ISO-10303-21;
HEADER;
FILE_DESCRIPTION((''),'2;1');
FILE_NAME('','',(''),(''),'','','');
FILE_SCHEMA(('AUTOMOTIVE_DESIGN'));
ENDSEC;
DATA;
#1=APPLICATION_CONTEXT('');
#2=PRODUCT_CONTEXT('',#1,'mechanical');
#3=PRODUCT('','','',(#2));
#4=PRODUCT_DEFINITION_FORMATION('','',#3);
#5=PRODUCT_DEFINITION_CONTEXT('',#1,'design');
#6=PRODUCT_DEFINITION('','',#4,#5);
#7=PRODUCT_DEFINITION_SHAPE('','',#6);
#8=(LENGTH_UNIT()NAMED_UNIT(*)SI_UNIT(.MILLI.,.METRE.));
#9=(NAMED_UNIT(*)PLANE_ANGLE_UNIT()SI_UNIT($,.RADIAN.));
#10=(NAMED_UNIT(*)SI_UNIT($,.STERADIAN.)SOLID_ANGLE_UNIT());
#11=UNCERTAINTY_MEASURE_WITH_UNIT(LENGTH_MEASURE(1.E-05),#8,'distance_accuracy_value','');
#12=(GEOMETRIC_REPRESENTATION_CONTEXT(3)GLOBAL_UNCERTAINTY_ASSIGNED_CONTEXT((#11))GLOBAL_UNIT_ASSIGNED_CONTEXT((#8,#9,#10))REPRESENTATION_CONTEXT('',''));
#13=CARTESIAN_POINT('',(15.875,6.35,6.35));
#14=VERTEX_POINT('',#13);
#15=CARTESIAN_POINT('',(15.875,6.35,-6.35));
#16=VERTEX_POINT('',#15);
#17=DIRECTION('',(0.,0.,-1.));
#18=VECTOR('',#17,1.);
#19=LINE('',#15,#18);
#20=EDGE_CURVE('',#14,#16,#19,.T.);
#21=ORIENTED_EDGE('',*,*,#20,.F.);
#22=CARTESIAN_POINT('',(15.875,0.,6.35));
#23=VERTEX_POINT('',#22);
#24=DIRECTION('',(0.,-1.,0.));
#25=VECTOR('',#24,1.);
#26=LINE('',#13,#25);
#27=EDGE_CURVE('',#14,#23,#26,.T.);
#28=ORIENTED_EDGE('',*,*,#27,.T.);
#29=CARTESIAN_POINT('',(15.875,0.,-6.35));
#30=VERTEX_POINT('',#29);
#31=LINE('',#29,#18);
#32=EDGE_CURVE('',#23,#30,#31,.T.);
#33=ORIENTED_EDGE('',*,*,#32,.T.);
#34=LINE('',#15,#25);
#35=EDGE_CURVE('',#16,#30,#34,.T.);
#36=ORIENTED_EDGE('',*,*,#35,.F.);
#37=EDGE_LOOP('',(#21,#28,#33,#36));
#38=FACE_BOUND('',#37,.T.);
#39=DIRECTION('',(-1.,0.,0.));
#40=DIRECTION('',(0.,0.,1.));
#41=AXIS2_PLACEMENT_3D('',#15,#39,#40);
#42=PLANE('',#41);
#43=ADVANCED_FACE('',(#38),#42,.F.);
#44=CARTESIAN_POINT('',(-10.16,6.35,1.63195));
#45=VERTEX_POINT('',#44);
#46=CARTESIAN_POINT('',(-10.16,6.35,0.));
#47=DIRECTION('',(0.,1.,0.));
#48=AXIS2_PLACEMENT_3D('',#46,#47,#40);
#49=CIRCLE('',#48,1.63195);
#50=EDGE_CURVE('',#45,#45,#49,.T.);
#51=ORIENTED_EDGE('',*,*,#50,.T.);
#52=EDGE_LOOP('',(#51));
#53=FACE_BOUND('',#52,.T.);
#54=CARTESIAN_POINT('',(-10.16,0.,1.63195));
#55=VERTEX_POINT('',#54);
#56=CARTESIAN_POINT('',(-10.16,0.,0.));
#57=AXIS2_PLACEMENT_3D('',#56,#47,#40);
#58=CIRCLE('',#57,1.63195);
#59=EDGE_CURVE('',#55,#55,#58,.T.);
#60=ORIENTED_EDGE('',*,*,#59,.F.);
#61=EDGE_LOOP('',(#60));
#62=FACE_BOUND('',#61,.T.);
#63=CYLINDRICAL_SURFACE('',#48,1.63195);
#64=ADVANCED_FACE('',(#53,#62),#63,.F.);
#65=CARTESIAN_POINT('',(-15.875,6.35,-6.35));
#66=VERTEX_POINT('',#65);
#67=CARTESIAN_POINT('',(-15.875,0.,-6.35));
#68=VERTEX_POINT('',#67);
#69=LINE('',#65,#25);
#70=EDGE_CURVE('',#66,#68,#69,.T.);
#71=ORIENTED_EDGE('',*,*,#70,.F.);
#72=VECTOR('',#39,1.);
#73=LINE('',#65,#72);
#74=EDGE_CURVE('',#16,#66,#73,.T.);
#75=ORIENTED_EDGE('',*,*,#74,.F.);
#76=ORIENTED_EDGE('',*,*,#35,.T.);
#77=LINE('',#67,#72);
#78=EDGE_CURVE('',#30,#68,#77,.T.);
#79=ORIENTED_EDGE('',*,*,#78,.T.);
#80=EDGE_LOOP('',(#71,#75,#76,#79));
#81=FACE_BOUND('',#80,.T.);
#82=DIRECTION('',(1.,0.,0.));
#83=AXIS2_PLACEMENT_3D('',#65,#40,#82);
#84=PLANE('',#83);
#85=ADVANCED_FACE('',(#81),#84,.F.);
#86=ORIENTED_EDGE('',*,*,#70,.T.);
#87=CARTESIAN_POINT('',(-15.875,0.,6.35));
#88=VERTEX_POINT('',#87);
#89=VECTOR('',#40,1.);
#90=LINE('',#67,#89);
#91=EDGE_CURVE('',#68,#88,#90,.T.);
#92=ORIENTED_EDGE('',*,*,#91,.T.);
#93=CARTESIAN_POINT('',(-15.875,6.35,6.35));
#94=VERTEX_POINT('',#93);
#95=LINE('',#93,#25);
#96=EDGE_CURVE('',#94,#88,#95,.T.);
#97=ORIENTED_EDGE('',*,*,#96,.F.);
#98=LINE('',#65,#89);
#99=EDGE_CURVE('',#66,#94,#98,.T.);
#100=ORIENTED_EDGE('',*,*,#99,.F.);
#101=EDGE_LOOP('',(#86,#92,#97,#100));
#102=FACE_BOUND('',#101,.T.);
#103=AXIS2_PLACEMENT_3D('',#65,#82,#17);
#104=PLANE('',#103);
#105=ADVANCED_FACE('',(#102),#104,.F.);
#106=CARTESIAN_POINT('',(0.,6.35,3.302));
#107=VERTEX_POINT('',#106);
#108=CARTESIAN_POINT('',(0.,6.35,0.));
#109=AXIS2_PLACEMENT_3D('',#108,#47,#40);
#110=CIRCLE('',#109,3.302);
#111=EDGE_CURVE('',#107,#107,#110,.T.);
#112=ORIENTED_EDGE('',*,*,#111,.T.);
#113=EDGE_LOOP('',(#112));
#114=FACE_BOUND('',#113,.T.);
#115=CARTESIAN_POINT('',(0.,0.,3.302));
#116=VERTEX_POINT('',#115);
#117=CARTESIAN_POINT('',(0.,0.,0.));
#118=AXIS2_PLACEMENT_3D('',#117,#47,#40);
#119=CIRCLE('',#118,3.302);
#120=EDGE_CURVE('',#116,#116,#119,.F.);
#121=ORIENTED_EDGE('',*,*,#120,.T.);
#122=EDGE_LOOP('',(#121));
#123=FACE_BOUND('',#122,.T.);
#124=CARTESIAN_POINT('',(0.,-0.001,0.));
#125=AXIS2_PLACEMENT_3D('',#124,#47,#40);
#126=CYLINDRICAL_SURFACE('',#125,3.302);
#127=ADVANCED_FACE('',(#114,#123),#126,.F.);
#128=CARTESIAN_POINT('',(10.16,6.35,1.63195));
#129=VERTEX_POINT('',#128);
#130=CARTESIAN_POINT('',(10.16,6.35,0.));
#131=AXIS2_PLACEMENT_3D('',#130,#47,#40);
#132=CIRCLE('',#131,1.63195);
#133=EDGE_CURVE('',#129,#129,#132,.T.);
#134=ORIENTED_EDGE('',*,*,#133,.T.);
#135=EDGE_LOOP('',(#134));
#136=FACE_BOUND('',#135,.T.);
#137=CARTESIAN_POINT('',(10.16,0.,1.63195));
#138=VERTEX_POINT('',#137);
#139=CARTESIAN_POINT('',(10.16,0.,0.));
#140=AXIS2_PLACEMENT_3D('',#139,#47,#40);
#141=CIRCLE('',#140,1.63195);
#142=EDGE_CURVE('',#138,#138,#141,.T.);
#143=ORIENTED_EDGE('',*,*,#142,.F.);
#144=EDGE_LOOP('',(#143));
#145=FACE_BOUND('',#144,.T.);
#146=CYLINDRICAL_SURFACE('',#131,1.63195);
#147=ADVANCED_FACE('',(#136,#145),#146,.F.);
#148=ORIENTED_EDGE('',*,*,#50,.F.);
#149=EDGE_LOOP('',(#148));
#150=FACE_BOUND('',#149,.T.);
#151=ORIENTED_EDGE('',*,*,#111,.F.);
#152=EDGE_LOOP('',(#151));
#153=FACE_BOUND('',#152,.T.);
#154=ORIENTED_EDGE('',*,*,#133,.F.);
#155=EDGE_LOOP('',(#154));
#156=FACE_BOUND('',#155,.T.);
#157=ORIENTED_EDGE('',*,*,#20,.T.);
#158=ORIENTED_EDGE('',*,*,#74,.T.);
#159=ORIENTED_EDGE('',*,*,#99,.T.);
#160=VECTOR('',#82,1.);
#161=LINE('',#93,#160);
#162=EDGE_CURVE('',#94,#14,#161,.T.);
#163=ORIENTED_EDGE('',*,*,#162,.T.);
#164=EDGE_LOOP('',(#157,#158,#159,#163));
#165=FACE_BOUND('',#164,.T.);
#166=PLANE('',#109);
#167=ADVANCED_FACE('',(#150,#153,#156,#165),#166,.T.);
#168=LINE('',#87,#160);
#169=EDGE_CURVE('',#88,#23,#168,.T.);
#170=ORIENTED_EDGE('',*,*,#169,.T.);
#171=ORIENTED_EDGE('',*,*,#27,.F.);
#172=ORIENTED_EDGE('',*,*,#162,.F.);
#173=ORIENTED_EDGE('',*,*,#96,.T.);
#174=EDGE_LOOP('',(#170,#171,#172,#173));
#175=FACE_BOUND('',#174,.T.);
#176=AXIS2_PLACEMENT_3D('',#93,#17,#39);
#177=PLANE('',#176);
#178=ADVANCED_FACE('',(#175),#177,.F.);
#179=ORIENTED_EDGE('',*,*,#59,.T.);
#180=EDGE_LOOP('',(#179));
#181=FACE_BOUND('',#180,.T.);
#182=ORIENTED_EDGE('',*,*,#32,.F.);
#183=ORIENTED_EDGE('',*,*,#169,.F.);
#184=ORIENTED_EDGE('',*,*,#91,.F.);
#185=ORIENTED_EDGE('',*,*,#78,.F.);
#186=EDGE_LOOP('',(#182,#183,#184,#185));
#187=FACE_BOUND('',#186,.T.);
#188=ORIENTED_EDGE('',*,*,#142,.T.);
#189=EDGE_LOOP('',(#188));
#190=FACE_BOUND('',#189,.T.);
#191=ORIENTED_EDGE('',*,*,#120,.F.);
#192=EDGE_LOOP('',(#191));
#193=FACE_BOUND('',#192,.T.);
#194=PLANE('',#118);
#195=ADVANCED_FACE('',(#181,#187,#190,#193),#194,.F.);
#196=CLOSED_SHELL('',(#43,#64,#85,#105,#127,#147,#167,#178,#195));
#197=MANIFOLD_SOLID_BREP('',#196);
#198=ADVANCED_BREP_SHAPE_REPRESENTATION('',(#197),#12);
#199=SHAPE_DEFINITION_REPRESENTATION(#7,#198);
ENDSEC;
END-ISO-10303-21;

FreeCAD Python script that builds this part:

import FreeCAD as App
import Part
import Sketcher

V = App.Vector
Q = App.Units.Quantity


def add_polygon(sketch, points):
    """Adds a closed chain of lines whose ends are joined by coincident constraints."""
    first, n = sketch.GeometryCount, len(points)
    for a, b in zip(points, points[1:] + points[:1]):
        sketch.addGeometry(Part.LineSegment(App.Vector(*a, 0), App.Vector(*b, 0)), False)
    for i in range(n):
        sketch.addConstraint(Sketcher.Constraint("Coincident", first + i, 2, first + (i + 1) % n, 1))

doc = App.newDocument("Part")
body = doc.addObject("PartDesign::Body", "Body")

# Sketch on XZ plane
sketch1 = doc.addObject("Sketcher::SketchObject", "Sketch")
body.addObject(sketch1)
sketch1.AttachmentSupport = (doc.XZ_Plane, [""])
sketch1.MapMode = "FlatFace"
add_polygon(sketch1, [(-16, -6), (-16, 6), (16, 6), (16, -6)])  # lines 0-3
sketch1.addConstraint(Sketcher.Constraint("Vertical", 0))
sketch1.addConstraint(Sketcher.Constraint("Horizontal", 1))
sketch1.addConstraint(Sketcher.Constraint("Vertical", 2))
sketch1.addConstraint(Sketcher.Constraint("Horizontal", 3))
sketch1.addConstraint(Sketcher.Constraint("Symmetric", 0, 2, 2, 2, -1, 1))
sketch1.addConstraint(Sketcher.Constraint("DistanceY", 0, 1, 0, 2, Q("0.5 in")))
sketch1.addConstraint(Sketcher.Constraint("DistanceX", 1, 1, 1, 2, Q("1.25 in")))
pad1 = doc.addObject("PartDesign::Pad", "Pad")
body.addObject(pad1)
pad1.Profile = sketch1
pad1.Length = Q("0.25 in")
pad1.Reversed = True

# Sketch on XZ plane
sketch2 = doc.addObject("Sketcher::SketchObject", "Sketch001")
body.addObject(sketch2)
sketch2.AttachmentSupport = (doc.XZ_Plane, [""])
sketch2.MapMode = "FlatFace"
sketch2.AttachmentOffset = App.Placement(V(0, 0, -0.25 * 25.4), App.Rotation())
sketch2.addGeometry(Part.Circle(V(0, 0, 0), V(0, 0, 1), 3.3), False)
sketch2.addConstraint(Sketcher.Constraint("Coincident", 0, 3, -1, 1))
sketch2.addConstraint(Sketcher.Constraint("Diameter", 0, Q("0.26 in")))
pocket1 = doc.addObject("PartDesign::Pocket", "Pocket")
body.addObject(pocket1)
pocket1.Profile = sketch2
pocket1.Type = "UpToFirst"
pocket1.Reversed = True

# Sketch on XZ plane
sketch3 = doc.addObject("Sketcher::SketchObject", "Sketch002")
body.addObject(sketch3)
sketch3.AttachmentSupport = (doc.XZ_Plane, [""])
sketch3.MapMode = "FlatFace"
sketch3.AttachmentOffset = App.Placement(V(0, 0, -0.25 * 25.4), App.Rotation())
sketch3.addGeometry(Part.Circle(V(-10.2, 0, 0), V(0, 0, 1), 1.6), False)
sketch3.addConstraint(Sketcher.Constraint("PointOnObject", 0, 3, -1))
sketch3.addConstraint(Sketcher.Constraint("Diameter", 0, Q("0.1285 in")))
sketch3.addConstraint(Sketcher.Constraint("DistanceX", 0, 3, -1, 1, Q("0.4 in")))
doc.recompute()
hole = doc.addObject("PartDesign::Hole", "Hole")
body.addObject(hole)
hole.Profile = sketch3
hole.ThreadType = "None"
hole.Diameter = Q("0.1285 in")
hole.DepthType = "ThroughAll"
hole.Reversed = True
doc.recompute()

mirrored = doc.addObject("PartDesign::Mirrored", "Mirrored")
body.addObject(mirrored)
mirrored.Originals = [hole]
mirrored.MirrorPlane = (doc.YZ_Plane, [""])
body.Tip = mirrored

doc.recompute()
